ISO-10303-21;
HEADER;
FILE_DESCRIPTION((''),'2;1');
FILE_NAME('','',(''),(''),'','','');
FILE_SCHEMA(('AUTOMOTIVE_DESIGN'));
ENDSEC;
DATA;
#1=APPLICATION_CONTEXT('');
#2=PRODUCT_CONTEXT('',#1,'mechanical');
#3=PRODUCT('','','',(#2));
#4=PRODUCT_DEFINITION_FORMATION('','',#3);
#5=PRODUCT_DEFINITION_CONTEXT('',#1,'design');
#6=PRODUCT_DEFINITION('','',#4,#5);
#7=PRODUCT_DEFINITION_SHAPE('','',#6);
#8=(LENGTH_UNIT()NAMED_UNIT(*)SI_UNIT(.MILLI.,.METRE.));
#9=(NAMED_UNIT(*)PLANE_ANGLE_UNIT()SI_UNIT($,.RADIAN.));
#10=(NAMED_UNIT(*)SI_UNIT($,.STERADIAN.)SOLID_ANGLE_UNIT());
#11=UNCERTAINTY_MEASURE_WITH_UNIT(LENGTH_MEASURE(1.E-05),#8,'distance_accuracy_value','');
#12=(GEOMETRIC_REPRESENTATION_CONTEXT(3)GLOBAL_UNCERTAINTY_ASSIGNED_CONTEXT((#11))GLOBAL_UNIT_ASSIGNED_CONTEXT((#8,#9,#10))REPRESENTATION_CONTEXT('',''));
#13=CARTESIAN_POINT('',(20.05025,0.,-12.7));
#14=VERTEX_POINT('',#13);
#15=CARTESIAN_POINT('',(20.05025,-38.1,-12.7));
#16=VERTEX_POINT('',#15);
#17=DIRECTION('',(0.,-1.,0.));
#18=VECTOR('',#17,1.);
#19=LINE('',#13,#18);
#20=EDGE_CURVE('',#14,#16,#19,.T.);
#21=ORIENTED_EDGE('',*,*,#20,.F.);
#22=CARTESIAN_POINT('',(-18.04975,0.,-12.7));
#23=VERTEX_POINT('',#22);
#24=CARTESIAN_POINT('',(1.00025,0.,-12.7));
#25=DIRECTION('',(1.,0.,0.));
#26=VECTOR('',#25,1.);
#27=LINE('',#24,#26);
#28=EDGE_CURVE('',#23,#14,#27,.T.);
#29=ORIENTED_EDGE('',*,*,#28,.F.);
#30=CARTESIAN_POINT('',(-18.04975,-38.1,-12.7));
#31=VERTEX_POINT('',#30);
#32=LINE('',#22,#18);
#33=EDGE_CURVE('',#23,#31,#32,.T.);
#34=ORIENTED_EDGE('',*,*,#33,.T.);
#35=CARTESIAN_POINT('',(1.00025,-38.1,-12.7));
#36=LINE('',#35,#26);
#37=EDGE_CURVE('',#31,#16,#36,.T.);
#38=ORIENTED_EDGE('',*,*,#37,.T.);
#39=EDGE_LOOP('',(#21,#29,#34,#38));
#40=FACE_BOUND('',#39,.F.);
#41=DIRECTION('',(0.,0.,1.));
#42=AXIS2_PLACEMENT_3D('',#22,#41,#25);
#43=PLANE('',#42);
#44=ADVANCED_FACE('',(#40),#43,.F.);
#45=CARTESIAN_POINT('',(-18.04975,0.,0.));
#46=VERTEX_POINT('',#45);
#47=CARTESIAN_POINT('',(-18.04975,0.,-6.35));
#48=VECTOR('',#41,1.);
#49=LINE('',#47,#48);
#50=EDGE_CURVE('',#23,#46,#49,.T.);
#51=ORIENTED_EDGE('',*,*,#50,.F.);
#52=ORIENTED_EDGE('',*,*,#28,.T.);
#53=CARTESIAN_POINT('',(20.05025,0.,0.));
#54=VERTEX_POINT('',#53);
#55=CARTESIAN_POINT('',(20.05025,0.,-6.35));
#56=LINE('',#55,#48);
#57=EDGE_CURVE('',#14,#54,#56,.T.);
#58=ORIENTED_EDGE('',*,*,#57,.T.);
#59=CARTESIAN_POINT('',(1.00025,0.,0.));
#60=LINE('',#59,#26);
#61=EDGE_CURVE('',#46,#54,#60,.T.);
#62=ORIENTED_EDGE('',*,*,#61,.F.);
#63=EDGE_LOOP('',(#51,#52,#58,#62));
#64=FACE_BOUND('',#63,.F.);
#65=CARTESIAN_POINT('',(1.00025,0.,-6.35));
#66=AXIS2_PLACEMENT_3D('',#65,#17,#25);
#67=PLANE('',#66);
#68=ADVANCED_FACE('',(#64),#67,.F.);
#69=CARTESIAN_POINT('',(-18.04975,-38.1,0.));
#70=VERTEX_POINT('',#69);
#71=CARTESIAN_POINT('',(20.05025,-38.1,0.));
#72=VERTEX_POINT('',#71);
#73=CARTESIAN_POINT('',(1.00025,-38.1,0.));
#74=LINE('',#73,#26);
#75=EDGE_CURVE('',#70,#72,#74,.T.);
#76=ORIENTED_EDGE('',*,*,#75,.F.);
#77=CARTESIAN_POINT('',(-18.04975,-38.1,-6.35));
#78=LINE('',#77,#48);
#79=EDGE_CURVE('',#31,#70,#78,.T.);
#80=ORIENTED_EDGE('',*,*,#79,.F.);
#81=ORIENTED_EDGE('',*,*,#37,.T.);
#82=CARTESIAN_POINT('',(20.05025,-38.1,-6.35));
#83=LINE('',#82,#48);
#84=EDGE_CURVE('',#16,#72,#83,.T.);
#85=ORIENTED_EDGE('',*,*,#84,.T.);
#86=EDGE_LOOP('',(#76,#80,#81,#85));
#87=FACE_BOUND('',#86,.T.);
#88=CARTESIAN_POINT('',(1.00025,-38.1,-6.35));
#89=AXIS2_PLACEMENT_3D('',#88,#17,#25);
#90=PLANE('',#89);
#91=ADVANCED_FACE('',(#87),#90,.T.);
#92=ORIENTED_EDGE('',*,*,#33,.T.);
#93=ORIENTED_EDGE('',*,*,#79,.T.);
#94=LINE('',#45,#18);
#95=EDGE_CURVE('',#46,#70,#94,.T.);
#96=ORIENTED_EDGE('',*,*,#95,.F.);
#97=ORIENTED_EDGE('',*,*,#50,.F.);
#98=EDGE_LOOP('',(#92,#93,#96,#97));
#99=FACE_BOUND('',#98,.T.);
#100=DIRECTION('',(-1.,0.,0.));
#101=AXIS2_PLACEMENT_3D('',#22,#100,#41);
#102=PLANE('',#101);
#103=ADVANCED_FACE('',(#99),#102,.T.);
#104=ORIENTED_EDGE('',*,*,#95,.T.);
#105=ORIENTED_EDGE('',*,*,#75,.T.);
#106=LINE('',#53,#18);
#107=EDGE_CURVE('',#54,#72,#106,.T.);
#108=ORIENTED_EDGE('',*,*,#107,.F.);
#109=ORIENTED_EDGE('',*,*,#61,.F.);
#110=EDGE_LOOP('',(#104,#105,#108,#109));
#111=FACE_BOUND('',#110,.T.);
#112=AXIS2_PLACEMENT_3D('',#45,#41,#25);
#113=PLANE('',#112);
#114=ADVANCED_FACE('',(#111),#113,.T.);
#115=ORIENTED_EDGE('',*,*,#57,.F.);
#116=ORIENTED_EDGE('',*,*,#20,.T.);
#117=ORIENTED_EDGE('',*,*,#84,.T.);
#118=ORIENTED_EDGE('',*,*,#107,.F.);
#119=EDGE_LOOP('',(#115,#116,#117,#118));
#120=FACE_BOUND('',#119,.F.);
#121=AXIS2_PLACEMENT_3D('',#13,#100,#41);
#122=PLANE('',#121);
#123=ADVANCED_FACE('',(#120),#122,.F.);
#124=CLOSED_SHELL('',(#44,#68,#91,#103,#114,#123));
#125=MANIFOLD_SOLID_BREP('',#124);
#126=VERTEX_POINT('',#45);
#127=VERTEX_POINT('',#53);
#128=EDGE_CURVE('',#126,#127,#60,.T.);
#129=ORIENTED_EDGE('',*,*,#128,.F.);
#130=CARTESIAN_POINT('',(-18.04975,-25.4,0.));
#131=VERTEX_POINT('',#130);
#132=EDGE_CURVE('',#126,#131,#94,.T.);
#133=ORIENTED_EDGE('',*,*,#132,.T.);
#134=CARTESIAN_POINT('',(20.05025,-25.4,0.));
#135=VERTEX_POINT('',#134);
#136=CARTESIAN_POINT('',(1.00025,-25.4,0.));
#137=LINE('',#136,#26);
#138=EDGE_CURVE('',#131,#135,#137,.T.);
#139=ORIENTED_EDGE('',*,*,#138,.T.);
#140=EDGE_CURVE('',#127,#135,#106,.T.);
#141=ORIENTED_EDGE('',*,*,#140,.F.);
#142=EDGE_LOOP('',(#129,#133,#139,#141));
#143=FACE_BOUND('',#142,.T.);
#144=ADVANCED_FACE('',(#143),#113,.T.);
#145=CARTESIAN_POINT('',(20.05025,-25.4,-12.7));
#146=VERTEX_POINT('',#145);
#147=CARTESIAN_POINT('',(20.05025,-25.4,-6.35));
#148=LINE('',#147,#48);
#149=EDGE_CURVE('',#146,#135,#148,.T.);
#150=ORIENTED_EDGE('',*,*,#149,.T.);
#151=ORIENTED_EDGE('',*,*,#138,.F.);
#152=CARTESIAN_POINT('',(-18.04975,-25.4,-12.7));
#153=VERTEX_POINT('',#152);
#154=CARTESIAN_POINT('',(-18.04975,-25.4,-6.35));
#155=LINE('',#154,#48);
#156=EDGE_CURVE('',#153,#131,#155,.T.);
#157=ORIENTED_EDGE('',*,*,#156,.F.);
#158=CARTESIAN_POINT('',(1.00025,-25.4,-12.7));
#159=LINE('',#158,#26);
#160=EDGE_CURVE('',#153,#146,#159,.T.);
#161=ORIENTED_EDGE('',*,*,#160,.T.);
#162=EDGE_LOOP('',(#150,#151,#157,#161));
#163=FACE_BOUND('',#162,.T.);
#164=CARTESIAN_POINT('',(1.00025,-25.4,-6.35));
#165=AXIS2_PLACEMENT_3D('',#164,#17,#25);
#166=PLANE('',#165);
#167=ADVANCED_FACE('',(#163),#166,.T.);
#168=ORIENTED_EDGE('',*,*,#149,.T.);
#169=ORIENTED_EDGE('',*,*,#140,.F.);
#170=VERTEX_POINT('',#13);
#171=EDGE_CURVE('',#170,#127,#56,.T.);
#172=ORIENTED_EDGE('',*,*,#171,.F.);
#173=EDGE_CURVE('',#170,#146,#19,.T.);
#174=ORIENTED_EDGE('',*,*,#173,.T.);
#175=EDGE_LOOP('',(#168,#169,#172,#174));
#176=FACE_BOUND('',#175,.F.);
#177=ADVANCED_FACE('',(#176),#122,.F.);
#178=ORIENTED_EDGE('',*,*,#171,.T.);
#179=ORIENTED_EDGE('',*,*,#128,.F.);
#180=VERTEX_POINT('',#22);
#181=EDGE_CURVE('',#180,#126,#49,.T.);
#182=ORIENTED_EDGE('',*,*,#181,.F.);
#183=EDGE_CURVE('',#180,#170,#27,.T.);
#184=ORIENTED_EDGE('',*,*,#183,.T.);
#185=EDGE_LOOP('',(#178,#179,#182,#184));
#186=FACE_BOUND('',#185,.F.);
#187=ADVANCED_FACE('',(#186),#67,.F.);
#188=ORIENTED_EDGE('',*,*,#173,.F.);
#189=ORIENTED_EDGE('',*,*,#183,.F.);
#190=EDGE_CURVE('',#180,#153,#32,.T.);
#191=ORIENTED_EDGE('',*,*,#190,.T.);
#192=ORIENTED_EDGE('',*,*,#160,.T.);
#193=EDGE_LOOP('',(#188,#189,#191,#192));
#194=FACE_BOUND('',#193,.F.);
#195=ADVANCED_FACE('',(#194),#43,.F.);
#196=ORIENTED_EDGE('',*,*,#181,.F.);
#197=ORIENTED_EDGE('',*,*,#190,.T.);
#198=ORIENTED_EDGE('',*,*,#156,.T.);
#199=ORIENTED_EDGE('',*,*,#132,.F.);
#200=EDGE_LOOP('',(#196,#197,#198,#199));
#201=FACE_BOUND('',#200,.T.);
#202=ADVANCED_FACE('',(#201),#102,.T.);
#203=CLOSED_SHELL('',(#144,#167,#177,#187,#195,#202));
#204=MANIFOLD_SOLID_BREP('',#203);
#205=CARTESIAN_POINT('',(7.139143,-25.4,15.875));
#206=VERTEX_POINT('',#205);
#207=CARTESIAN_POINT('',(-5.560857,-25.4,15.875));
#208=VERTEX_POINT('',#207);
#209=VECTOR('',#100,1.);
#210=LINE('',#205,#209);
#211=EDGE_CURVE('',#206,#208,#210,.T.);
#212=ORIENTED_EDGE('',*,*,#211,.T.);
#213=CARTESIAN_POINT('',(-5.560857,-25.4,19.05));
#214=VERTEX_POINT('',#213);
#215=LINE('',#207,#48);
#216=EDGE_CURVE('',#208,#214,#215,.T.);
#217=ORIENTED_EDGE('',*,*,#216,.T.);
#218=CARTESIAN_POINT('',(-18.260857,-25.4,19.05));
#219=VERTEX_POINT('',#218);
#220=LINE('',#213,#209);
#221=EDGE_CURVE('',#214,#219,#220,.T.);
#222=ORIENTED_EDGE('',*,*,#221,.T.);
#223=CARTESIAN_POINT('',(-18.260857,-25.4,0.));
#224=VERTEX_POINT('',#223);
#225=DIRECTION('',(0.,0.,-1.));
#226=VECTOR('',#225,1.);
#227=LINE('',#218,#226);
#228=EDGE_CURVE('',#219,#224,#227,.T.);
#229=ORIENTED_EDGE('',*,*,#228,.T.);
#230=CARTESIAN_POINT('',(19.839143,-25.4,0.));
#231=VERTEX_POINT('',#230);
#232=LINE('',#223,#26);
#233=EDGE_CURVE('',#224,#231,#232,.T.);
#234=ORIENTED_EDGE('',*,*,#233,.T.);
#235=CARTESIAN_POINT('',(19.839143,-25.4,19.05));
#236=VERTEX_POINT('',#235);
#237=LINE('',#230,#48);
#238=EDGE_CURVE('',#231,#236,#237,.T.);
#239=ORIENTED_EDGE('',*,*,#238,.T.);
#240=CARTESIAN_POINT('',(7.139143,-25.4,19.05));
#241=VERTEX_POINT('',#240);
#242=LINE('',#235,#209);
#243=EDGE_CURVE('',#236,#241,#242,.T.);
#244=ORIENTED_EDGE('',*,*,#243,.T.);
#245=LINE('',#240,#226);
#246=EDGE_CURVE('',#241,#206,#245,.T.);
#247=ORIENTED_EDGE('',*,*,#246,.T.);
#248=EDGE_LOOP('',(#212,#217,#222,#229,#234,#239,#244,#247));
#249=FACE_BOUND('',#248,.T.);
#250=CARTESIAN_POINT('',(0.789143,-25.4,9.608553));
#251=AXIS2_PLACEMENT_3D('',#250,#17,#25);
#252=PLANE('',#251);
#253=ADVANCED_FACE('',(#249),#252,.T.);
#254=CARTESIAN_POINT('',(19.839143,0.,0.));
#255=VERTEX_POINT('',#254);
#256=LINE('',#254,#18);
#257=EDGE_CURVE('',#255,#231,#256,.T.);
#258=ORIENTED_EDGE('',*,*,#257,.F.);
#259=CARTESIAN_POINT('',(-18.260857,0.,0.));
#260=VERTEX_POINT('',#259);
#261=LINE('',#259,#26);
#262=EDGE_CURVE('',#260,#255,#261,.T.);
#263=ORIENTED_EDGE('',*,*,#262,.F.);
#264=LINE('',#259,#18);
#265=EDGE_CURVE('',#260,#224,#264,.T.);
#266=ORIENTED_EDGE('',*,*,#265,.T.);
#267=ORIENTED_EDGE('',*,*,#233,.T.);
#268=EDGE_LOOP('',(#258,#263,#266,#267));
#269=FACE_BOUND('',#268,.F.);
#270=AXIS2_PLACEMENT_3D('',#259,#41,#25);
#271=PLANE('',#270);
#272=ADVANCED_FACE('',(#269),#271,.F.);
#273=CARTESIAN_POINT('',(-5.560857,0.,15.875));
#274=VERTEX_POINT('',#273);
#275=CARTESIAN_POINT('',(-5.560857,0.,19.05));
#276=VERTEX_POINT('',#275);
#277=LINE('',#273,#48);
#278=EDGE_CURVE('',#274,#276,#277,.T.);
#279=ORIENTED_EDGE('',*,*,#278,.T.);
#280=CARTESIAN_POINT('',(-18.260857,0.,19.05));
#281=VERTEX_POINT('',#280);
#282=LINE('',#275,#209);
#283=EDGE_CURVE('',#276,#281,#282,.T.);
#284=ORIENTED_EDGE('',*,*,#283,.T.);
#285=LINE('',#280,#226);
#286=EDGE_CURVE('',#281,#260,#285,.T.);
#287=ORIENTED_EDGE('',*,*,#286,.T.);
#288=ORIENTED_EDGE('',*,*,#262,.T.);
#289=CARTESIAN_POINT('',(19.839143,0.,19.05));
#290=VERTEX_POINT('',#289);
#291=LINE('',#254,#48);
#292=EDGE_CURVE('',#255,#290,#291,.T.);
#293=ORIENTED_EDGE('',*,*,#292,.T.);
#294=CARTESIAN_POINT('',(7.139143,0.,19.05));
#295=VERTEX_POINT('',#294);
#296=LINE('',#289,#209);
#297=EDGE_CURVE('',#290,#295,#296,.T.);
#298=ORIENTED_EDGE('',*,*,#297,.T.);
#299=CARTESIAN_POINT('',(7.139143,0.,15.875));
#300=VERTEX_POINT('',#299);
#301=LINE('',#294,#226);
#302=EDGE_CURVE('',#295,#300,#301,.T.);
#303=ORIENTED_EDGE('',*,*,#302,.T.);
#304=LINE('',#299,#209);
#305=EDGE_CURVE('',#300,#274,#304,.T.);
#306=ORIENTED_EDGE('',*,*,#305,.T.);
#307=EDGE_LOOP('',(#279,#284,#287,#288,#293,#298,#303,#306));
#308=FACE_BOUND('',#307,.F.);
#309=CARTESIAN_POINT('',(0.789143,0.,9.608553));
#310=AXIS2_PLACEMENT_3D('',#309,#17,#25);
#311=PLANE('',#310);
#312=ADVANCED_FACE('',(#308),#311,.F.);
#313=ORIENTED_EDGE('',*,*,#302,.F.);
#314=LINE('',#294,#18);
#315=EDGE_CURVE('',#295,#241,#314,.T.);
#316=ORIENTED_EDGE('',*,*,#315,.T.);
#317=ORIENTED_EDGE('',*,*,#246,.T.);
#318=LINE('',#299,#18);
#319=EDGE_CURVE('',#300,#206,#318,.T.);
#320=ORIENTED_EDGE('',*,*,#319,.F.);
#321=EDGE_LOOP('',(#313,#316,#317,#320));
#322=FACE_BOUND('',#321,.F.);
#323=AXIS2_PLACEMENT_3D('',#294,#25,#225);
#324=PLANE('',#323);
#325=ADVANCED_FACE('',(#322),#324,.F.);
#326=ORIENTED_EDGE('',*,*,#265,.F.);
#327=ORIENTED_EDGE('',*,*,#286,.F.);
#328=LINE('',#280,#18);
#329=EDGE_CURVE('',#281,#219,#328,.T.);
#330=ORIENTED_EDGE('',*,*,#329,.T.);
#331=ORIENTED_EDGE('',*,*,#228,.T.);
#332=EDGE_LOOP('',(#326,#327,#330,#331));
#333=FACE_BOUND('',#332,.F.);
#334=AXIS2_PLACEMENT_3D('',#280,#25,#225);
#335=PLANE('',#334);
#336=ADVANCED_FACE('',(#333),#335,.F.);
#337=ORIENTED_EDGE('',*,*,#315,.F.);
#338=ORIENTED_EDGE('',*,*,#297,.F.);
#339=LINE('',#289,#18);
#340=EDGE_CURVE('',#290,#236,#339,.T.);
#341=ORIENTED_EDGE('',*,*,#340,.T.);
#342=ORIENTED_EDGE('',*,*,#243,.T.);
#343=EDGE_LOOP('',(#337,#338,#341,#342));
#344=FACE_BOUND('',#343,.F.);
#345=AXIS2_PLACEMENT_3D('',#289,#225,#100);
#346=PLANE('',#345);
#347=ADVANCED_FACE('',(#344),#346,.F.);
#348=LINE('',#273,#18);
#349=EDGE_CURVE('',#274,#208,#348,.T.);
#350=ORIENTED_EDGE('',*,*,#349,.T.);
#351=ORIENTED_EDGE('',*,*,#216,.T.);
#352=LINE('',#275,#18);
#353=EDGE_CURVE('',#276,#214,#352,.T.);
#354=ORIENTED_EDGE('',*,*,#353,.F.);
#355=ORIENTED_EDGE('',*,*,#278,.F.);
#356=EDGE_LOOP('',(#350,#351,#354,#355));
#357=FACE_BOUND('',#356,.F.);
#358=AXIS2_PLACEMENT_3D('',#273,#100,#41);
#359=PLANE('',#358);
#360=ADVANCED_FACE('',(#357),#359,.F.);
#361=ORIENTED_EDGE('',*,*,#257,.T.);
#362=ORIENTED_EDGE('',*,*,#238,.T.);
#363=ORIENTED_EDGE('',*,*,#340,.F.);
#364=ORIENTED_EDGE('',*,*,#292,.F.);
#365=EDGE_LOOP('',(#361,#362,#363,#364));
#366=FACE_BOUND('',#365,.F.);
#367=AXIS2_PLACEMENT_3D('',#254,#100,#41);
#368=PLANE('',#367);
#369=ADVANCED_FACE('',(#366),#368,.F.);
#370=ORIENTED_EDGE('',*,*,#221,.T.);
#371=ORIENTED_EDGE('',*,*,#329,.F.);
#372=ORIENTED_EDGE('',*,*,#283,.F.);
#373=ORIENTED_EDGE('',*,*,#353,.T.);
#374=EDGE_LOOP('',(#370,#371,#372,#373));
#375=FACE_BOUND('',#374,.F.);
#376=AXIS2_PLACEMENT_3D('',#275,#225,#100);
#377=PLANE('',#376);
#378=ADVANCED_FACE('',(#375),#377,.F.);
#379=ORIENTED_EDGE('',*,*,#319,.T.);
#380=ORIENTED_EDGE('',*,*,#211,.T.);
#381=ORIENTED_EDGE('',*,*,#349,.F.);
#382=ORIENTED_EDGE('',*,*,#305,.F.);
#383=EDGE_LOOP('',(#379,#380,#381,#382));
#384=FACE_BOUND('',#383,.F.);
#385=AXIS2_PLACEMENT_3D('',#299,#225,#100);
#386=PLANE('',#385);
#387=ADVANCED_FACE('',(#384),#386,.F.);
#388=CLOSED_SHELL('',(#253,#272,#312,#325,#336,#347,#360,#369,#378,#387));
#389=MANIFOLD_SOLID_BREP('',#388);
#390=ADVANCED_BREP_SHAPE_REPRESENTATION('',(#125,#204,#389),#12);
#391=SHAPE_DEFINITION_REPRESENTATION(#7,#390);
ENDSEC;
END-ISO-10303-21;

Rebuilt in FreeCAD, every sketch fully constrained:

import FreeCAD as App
import Part
import Sketcher

V = App.Vector
Q = App.Units.Quantity


def add_polygon(sketch, points):
    """Adds a closed chain of lines whose ends are joined by coincident constraints."""
    first, n = sketch.GeometryCount, len(points)
    for a, b in zip(points, points[1:] + points[:1]):
        sketch.addGeometry(Part.LineSegment(App.Vector(*a, 0), App.Vector(*b, 0)), False)
    for i in range(n):
        sketch.addConstraint(Sketcher.Constraint("Coincident", first + i, 2, first + (i + 1) % n, 1))

doc = App.newDocument("Part")
body = doc.addObject("PartDesign::Body", "Body")

sketch1 = body.newObject("Sketcher::SketchObject", "Sketch")
sketch1.AttachmentSupport = (doc.getObject("XZ_Plane"), [""])
sketch1.MapMode = "FlatFace"
add_polygon(sketch1, [(-5.560857, 19.05), (-18.260857, 19.05), (-18.260857, 0), (19.839143, 0), (19.839143, 19.05), (7.139143, 19.05), (7.139143, 15.875), (-5.560857, 15.875)])
sketch1.addConstraint([
    Sketcher.Constraint("Horizontal", 0),
    Sketcher.Constraint("Vertical", 1),
    Sketcher.Constraint("Horizontal", 2),
    Sketcher.Constraint("Vertical", 3),
    Sketcher.Constraint("Horizontal", 4),
    Sketcher.Constraint("Vertical", 5),
    Sketcher.Constraint("Horizontal", 6),
    Sketcher.Constraint("Vertical", 7),
    Sketcher.Constraint("PointOnObject", 1, 2, -1),
    Sketcher.Constraint("Horizontal", 0, 2, 3, 2),
    Sketcher.Constraint("Equal", 0, 4),
    Sketcher.Constraint("Equal", 4, 6),
    Sketcher.Constraint("DistanceX", 0, 2, 0, 1, Q("0.5 in")),
    Sketcher.Constraint("DistanceY", 1, 2, 1, 1, Q("0.75 in")),
    Sketcher.Constraint("DistanceY", 5, 2, 5, 1, Q("0.125 in")),
    Sketcher.Constraint("DistanceX", 0, 2, -1, 1, 18.260857),
])
pad1 = body.newObject("PartDesign::Pad", "Pad")
pad1.Profile = sketch1
pad1.Length = Q("1 in")
body2 = doc.addObject("PartDesign::Body", "Body001")

sketch2 = body2.newObject("Sketcher::SketchObject", "Sketch001")
sketch2.AttachmentSupport = (doc.getObject("XZ_Plane001"), [""])
sketch2.MapMode = "FlatFace"
add_polygon(sketch2, [(-18.04975, 0), (-18.04975, -12.7), (20.05025, -12.7), (20.05025, 0)])
sketch2.addConstraint([
    Sketcher.Constraint("Vertical", 0),
    Sketcher.Constraint("Horizontal", 1),
    Sketcher.Constraint("Vertical", 2),
    Sketcher.Constraint("Horizontal", 3),
    Sketcher.Constraint("PointOnObject", 2, 2, -1),
    Sketcher.Constraint("DistanceX", 1, 1, 1, 2, Q("1.5 in")),
    Sketcher.Constraint("DistanceY", 0, 2, 0, 1, Q("0.5 in")),
    Sketcher.Constraint("DistanceX", 0, 2, -1, 1, 18.04975),
])
pad2 = body2.newObject("PartDesign::Pad", "Pad001")
pad2.Profile = sketch2
pad2.Length = Q("1 in")
body3 = doc.addObject("PartDesign::Body", "Body002")

sketch3 = body3.newObject("Sketcher::SketchObject", "Sketch002")
sketch3.AttachmentSupport = (doc.getObject("XZ_Plane002"), [""])
sketch3.MapMode = "FlatFace"
add_polygon(sketch3, [(-18.04975, 0), (-18.04975, -12.7), (20.05025, -12.7), (20.05025, 0)])
sketch3.addConstraint([
    Sketcher.Constraint("Vertical", 0),
    Sketcher.Constraint("Horizontal", 1),
    Sketcher.Constraint("Vertical", 2),
    Sketcher.Constraint("Horizontal", 3),
    Sketcher.Constraint("PointOnObject", 2, 2, -1),
    Sketcher.Constraint("DistanceX", 1, 1, 1, 2, Q("1.5 in")),
    Sketcher.Constraint("DistanceY", 0, 2, 0, 1, Q("0.5 in")),
    Sketcher.Constraint("DistanceX", 0, 2, -1, 1, 18.04975),
])
pad3 = body3.newObject("PartDesign::Pad", "Pad002")
pad3.Profile = sketch3
pad3.Length = Q("1.5 in")

doc.recompute()
